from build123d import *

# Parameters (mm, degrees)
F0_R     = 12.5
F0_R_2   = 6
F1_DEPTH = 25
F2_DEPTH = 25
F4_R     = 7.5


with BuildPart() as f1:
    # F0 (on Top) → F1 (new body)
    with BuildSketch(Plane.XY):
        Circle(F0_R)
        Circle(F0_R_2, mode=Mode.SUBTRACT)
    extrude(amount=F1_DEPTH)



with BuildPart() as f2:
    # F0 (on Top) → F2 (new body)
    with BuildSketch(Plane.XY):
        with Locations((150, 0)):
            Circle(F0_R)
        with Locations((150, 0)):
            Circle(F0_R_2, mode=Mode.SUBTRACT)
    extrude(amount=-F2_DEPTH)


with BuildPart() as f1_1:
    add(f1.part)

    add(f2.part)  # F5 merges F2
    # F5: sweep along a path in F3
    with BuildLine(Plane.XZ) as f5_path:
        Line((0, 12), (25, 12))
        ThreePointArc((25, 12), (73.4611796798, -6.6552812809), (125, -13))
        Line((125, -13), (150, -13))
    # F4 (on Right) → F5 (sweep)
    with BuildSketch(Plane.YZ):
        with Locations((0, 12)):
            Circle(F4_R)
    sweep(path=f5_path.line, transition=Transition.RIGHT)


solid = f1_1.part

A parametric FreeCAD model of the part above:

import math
import FreeCAD as App
import Part
import Sketcher

V = App.Vector

doc = App.newDocument("Part")
body = doc.addObject("PartDesign::Body", "Body")

# Sketch on XY plane
sketch1 = doc.addObject("Sketcher::SketchObject", "Sketch")
body.addObject(sketch1)
sketch1.AttachmentSupport = (doc.XY_Plane, [""])
sketch1.MapMode = "FlatFace"
sketch1.addGeometry([
    Part.Circle(V(0, 0, 0), V(0, 0, 1), 12.5),
    Part.Circle(V(0, 0, 0), V(0, 0, 1), 6),
], False)
sketch1.addConstraint([
    Sketcher.Constraint("Coincident", 0, 3, -1, 1),
    Sketcher.Constraint("Coincident", 1, 3, -1, 1),
    Sketcher.Constraint("Diameter", 0, 25.0),
    Sketcher.Constraint("Diameter", 1, 12.0),
])
pad1 = doc.addObject("PartDesign::Pad", "Pad")
body.addObject(pad1)
pad1.Profile = sketch1
pad1.Length = 25
body2 = doc.addObject("PartDesign::Body", "Body001")

# Sketch on XY plane
sketch2 = doc.addObject("Sketcher::SketchObject", "Sketch001")
body2.addObject(sketch2)
sketch2.AttachmentSupport = (doc.getObject("XY_Plane001"), [""])
sketch2.MapMode = "FlatFace"
sketch2.addGeometry([
    Part.Circle(V(150, 0, 0), V(0, 0, 1), 12.5),
    Part.Circle(V(150, 0, 0), V(0, 0, 1), 6),
], False)
sketch2.addConstraint([
    Sketcher.Constraint("Coincident", 1, 3, 0, 3),
    Sketcher.Constraint("PointOnObject", 0, 3, -1),
    Sketcher.Constraint("Diameter", 0, 25.0),
    Sketcher.Constraint("Diameter", 1, 12.0),
    Sketcher.Constraint("DistanceX", -1, 1, 0, 3, 150.0),
])
pad2 = doc.addObject("PartDesign::Pad", "Pad001")
body2.addObject(pad2)
pad2.Profile = sketch2
pad2.Length = 25
pad2.Reversed = True
body.AllowCompound = True
doc.recompute()

boolean = doc.addObject("PartDesign::Boolean", "Boolean")
body.addObject(boolean)
boolean.Type = "Fuse"
boolean.addObjects([body2])

# Sketch on YZ plane
sketch3 = doc.addObject("Sketcher::SketchObject", "Sketch002")
body.addObject(sketch3)
sketch3.AttachmentSupport = (doc.YZ_Plane, [""])
sketch3.MapMode = "FlatFace"
sketch3.addGeometry(Part.Circle(V(0, 12, 0), V(0, 0, 1), 7.5), False)
sketch3.addConstraint([
    Sketcher.Constraint("PointOnObject", 0, 3, -2),
    Sketcher.Constraint("Diameter", 0, 15.0),
    Sketcher.Constraint("DistanceY", -1, 1, 0, 3, 12.0),
])

# Sketch on XZ plane
sketch4 = doc.addObject("Sketcher::SketchObject", "Sketch003")
body.addObject(sketch4)
sketch4.AttachmentSupport = (doc.XZ_Plane, [""])
sketch4.MapMode = "FlatFace"
sketch4.addGeometry([
    Part.LineSegment(V(0, 12, 0), V(25, 12, 0)),
    Part.ArcOfCircle(Part.Circle(V(125, 199.5, 0), V(0, 0, 1), 212.5), math.radians(-118.072487), math.radians(-90)),
    Part.LineSegment(V(125, -13, 0), V(150, -13, 0)),
], False)
sketch4.addConstraint([
    Sketcher.Constraint("Coincident", 0, 2, 1, 1),
    Sketcher.Constraint("Tangent", 1, 2, 2, 1),
    Sketcher.Constraint("Horizontal", 0),
    Sketcher.Constraint("Horizontal", 2),
    Sketcher.Constraint("PointOnObject", 0, 1, -2),
    Sketcher.Constraint("Equal", 0, 2),
    Sketcher.Constraint("Radius", 1, 212.5),
    Sketcher.Constraint("DistanceX", 0, 1, 0, 2, 25.0),
    Sketcher.Constraint("DistanceX", -1, 1, 1, 3, 125.0),
    Sketcher.Constraint("DistanceY", -1, 1, 0, 1, 12.0),
])
doc.recompute()

additivepipe = doc.addObject("PartDesign::AdditivePipe", "AdditivePipe")
body.addObject(additivepipe)
additivepipe.Profile = sketch3
additivepipe.Spine = (sketch4, ["Edge1", "Edge2", "Edge3"])
additivepipe.Transition = "Right corner"

doc.recompute()
